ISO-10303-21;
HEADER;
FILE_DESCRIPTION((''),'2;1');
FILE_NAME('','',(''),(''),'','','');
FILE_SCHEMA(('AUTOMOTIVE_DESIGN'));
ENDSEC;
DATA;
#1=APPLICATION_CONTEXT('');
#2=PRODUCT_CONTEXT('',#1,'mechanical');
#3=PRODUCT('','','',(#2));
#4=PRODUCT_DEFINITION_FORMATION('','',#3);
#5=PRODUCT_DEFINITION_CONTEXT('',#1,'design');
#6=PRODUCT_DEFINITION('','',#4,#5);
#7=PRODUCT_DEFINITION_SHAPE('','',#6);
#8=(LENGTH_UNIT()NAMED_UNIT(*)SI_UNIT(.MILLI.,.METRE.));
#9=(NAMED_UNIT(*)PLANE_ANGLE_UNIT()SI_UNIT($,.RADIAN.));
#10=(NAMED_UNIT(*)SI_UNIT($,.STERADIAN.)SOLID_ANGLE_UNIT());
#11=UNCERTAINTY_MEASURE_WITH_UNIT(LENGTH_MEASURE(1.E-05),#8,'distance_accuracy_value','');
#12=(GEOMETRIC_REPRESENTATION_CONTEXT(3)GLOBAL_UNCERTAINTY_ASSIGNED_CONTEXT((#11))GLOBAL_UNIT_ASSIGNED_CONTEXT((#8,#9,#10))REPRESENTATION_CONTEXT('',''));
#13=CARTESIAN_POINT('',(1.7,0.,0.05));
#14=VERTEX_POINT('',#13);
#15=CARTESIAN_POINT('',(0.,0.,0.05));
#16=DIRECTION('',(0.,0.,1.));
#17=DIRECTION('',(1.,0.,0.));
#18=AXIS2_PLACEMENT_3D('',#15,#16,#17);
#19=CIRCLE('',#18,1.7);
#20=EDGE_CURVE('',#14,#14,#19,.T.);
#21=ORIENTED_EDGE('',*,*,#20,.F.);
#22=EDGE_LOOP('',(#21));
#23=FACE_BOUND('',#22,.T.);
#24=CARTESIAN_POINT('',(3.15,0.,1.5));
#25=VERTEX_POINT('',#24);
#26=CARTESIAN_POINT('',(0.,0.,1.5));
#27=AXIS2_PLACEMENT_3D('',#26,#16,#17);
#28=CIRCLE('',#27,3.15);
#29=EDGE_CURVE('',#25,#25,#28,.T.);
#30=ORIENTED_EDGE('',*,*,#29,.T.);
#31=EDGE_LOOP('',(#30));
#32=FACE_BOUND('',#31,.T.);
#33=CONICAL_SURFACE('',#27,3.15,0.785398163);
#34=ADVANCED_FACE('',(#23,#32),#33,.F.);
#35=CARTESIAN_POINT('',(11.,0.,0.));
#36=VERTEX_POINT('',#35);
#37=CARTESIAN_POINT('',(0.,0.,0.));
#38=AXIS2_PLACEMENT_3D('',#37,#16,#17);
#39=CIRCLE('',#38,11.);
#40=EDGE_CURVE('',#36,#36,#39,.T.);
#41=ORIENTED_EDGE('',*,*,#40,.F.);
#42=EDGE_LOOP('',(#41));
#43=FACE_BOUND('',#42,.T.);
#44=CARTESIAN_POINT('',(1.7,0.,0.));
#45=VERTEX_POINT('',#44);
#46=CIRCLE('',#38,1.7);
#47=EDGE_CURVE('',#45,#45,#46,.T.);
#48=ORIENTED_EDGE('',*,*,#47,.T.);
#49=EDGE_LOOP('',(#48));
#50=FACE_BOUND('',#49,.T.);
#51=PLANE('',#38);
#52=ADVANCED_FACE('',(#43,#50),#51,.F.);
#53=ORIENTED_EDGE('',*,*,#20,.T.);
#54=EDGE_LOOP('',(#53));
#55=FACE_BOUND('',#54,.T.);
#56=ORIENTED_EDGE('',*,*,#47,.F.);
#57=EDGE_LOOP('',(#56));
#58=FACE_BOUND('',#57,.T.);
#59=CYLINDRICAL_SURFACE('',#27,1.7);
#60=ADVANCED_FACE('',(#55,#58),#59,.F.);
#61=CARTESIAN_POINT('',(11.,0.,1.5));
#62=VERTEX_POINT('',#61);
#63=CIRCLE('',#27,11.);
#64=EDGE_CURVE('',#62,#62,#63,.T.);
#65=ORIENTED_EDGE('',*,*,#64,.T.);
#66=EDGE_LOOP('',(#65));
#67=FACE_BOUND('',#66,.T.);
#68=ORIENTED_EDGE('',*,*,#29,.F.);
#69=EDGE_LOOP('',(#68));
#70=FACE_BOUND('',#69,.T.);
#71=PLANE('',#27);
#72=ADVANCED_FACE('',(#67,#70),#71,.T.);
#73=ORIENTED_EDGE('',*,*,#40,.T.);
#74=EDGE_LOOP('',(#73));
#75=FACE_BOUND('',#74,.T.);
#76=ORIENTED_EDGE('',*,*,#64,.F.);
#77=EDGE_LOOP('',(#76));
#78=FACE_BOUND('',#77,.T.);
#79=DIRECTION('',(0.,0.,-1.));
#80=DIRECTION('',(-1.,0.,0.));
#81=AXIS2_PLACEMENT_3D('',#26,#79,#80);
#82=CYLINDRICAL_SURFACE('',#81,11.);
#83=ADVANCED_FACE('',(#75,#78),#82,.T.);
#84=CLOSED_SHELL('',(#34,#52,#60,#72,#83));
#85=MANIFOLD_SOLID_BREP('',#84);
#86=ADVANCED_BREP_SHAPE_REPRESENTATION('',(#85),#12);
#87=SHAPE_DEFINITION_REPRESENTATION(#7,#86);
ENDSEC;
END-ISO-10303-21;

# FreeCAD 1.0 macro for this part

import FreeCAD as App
import Part
import Sketcher
from FreeCAD import Vector
Q = App.Units.Quantity


def add_polygon(sketch, points):
    """Adds a closed chain of lines whose ends are joined by coincident constraints."""
    first, n = sketch.GeometryCount, len(points)
    for a, b in zip(points, points[1:] + points[:1]):
        sketch.addGeometry(Part.LineSegment(App.Vector(*a, 0), App.Vector(*b, 0)), False)
    for i in range(n):
        sketch.addConstraint(Sketcher.Constraint("Coincident", first + i, 2, first + (i + 1) % n, 1))

doc = App.newDocument("Part")
body = doc.addObject("PartDesign::Body", "Body")

sketch1 = body.newObject("Sketcher::SketchObject", "Sketch")
sketch1.AttachmentSupport = (doc.getObject("XY_Plane"), [""])
sketch1.MapMode = "FlatFace"
sketch1.addGeometry([
    Part.Circle(Vector(0, 0, 0), Vector(0, 0, 1), 11),
    Part.Circle(Vector(0, 0, 0), Vector(0, 0, 1), 1.5),
], False)
sketch1.addConstraint([
    Sketcher.Constraint("Coincident", 0, 3, -1, 1),
    Sketcher.Constraint("Coincident", 1, 3, -1, 1),
    Sketcher.Constraint("Diameter", 0, Q("22 mm")),
    Sketcher.Constraint("Diameter", 1, Q("3 mm")),
])
pad1 = body.newObject("PartDesign::Pad", "Pad")
pad1.Profile = sketch1
pad1.Length = 1.5

sketch2 = body.newObject("Sketcher::SketchObject", "Sketch001")
sketch2.AttachmentSupport = (doc.getObject("YZ_Plane"), [""])
sketch2.MapMode = "FlatFace"
add_polygon(sketch2, [(0, 0), (0, 1.5), (-3.15, 1.5), (-1.7, 0.05), (-1.7, 0)])
sketch2.addConstraint([
    Sketcher.Constraint("Vertical", 0),
    Sketcher.Constraint("Horizontal", 1),
    Sketcher.Constraint("Vertical", 3),
    Sketcher.Constraint("Horizontal", 4),
    Sketcher.Constraint("Coincident", 4, 2, -1, 1),
    Sketcher.Constraint("Angle", 2, Q("-45 deg")),
    Sketcher.Constraint("DistanceX", 4, 1, 4, 2, Q("1.7 mm")),
    Sketcher.Constraint("DistanceY", 0, 1, 0, 2, Q("1.5 mm")),
    Sketcher.Constraint("DistanceX", 1, 2, 1, 1, Q("3.15 mm")),
])
groove = body.newObject("PartDesign::Groove", "Groove")
groove.Profile = sketch2
groove.ReferenceAxis = (sketch2, ["V_Axis"])
groove.Angle = 360

doc.recompute()
